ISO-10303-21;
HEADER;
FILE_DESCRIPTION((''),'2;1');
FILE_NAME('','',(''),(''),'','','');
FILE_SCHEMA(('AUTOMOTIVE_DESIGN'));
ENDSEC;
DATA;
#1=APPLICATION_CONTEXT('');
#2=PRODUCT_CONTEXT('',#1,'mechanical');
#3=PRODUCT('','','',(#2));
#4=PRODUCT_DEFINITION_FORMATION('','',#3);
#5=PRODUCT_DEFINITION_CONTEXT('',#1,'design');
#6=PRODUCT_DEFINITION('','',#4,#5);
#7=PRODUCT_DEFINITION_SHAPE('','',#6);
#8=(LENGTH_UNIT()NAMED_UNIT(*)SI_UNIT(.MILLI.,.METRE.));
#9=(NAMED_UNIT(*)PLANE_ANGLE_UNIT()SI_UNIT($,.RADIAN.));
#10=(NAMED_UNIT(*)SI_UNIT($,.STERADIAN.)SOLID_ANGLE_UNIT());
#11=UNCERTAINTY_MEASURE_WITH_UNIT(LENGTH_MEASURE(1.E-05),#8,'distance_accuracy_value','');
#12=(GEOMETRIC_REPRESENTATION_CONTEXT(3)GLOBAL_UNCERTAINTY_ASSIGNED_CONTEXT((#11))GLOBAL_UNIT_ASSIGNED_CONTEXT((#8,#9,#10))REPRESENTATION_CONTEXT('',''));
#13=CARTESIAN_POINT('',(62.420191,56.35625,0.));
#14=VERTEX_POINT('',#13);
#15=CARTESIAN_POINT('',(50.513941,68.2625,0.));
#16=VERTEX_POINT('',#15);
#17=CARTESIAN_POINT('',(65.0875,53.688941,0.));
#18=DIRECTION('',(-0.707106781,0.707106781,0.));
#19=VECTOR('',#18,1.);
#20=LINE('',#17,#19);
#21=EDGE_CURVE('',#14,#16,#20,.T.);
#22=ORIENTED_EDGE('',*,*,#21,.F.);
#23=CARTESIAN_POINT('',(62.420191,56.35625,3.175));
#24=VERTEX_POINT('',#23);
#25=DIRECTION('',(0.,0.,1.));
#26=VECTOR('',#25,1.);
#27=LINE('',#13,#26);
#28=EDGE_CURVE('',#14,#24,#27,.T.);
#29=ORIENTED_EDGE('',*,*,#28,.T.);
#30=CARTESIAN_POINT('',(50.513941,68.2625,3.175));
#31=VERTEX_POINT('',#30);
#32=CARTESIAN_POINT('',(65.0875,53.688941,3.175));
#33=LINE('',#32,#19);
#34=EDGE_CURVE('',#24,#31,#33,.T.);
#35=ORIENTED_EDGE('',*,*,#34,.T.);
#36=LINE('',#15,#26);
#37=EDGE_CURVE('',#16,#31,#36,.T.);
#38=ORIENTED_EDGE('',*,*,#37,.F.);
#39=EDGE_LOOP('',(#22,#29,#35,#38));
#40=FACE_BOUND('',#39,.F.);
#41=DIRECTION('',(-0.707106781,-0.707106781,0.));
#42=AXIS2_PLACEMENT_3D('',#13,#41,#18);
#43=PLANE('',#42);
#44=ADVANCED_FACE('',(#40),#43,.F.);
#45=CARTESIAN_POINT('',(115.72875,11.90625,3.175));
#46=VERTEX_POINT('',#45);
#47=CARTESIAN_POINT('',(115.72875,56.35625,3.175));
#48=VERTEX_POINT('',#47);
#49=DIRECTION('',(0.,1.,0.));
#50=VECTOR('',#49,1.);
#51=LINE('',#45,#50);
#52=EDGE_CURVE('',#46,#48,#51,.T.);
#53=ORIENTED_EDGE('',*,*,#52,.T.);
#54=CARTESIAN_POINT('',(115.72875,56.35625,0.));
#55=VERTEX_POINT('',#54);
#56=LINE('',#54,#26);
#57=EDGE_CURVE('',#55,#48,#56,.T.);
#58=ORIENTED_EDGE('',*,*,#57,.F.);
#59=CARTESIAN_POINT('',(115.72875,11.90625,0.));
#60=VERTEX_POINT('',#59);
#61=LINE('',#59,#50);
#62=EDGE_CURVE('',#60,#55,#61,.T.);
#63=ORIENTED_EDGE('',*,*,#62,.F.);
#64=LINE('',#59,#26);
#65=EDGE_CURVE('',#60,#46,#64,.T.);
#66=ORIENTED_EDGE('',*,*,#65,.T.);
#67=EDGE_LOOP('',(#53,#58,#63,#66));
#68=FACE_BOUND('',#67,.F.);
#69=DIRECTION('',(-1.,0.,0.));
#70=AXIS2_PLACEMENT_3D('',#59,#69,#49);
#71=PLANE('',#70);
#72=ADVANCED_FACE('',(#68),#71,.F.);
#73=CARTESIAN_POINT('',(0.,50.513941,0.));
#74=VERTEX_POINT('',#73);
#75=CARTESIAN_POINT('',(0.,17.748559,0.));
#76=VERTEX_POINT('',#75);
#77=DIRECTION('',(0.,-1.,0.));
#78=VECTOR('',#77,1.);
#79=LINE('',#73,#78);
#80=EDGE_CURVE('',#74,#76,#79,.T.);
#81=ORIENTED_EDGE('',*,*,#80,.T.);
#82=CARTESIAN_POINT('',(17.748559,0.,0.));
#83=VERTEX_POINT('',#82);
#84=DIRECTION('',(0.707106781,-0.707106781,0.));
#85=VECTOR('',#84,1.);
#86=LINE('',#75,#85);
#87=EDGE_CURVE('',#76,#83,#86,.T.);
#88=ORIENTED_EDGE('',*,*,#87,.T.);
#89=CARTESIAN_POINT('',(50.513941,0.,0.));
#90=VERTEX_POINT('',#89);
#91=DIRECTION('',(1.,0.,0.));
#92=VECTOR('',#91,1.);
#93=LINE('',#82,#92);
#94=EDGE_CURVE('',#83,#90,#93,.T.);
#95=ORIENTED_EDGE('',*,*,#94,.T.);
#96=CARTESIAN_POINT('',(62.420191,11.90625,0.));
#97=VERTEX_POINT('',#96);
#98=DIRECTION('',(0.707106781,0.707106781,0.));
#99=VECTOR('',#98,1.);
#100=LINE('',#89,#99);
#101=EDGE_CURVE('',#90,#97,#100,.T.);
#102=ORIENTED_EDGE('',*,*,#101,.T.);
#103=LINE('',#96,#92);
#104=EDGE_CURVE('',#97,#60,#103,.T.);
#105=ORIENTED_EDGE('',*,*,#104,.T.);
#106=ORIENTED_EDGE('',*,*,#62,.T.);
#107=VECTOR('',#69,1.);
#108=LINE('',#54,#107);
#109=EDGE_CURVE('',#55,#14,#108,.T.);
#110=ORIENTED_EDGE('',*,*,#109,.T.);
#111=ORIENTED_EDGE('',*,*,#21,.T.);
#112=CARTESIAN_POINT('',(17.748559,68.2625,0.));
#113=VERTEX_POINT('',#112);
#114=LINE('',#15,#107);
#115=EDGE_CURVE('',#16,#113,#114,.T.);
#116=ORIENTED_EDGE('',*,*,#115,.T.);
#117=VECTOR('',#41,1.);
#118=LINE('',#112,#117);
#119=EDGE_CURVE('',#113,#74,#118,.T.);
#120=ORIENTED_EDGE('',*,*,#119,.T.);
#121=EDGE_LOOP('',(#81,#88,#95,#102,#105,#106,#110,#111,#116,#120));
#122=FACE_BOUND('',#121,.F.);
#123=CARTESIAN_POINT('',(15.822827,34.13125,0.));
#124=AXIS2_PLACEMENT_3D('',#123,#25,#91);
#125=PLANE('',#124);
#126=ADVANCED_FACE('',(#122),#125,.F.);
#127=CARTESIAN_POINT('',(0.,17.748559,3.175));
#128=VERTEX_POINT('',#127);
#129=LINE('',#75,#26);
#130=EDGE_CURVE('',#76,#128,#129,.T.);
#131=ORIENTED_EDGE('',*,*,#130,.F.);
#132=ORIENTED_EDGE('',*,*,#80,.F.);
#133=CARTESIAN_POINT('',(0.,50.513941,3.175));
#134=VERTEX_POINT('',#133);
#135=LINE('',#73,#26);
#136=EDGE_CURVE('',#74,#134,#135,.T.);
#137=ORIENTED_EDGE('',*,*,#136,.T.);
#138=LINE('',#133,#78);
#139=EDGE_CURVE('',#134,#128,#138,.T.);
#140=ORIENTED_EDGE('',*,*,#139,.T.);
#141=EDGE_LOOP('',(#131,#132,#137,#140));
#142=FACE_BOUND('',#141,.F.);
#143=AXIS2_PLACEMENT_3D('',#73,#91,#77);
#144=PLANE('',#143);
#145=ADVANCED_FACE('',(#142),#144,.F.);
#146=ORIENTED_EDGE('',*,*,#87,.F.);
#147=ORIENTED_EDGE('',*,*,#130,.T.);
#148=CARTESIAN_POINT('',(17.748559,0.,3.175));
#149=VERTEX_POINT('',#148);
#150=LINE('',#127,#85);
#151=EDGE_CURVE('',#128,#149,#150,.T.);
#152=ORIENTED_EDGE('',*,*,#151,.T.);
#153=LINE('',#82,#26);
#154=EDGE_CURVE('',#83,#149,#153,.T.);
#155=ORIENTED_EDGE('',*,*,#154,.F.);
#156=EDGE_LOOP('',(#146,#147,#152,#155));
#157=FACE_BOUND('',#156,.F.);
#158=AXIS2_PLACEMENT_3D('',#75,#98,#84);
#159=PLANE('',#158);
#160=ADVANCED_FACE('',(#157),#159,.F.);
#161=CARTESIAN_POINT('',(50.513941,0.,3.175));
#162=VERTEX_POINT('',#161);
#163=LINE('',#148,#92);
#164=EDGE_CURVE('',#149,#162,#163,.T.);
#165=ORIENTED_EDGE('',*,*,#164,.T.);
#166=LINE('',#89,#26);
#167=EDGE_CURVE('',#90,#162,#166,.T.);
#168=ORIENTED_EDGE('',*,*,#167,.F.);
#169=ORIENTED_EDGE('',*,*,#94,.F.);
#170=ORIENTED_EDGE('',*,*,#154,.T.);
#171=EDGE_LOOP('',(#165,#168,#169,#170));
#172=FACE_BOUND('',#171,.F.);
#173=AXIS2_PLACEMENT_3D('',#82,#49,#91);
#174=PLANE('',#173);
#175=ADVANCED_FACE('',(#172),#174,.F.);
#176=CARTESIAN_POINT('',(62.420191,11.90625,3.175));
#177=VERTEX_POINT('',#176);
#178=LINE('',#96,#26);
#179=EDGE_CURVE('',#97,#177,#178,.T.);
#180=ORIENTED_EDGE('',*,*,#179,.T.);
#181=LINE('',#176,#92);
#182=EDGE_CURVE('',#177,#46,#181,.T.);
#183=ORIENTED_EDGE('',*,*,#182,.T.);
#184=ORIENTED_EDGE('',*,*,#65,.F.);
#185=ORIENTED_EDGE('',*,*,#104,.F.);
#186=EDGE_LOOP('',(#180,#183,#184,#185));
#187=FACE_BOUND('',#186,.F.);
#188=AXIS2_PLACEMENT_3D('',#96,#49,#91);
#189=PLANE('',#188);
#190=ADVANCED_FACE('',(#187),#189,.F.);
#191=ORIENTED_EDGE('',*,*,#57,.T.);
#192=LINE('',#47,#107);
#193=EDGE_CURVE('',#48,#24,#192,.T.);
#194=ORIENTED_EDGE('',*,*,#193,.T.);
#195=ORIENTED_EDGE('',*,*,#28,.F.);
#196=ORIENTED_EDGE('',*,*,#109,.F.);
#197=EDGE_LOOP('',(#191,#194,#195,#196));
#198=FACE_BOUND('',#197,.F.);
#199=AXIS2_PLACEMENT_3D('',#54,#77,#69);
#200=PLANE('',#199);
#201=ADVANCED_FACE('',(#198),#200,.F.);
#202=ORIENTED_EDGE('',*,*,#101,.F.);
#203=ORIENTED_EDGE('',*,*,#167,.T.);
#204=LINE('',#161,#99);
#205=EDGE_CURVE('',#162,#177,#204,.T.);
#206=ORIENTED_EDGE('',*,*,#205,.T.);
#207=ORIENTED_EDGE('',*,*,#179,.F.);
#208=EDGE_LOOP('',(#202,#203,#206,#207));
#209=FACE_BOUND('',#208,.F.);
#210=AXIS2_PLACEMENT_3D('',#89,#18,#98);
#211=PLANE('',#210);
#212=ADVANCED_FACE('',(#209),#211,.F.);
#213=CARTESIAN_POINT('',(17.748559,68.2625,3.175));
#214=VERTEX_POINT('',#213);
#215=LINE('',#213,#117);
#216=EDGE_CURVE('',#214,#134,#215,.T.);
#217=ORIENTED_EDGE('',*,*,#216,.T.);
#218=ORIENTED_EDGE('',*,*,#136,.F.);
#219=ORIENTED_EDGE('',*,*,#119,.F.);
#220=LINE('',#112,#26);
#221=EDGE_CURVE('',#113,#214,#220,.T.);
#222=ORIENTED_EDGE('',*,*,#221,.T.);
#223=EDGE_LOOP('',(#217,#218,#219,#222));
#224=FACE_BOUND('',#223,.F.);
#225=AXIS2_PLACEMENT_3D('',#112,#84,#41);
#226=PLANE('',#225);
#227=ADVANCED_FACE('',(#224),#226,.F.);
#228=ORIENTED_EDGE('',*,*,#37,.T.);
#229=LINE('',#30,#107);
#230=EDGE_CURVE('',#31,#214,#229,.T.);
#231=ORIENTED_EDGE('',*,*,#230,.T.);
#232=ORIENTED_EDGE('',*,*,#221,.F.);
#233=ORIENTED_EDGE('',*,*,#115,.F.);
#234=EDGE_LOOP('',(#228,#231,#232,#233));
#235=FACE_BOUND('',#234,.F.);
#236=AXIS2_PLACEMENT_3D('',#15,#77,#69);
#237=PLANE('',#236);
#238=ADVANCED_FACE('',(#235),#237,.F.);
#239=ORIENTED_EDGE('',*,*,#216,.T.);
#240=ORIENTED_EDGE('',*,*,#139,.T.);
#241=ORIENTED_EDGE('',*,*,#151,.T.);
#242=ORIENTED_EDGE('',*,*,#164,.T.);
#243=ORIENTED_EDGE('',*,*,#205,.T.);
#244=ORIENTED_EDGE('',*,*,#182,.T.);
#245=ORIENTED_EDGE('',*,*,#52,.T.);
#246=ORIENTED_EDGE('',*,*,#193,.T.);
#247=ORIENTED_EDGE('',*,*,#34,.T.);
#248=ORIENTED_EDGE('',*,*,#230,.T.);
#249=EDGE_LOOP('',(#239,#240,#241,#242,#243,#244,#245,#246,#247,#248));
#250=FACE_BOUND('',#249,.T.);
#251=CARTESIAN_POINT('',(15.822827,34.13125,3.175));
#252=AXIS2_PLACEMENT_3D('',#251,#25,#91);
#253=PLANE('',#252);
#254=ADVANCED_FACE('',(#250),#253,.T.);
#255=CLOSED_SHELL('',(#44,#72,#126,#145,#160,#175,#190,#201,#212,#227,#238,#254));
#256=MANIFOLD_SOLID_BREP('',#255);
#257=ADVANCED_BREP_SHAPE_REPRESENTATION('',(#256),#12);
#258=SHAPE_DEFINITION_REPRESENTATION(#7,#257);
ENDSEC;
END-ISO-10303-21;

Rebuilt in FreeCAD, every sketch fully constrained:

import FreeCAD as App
import Part
import Sketcher
from FreeCAD import Vector
Q = App.Units.Quantity


def add_polygon(sketch, points):
    """Adds a closed chain of lines whose ends are joined by coincident constraints."""
    first, n = sketch.GeometryCount, len(points)
    for a, b in zip(points, points[1:] + points[:1]):
        sketch.addGeometry(Part.LineSegment(App.Vector(*a, 0), App.Vector(*b, 0)), False)
    for i in range(n):
        sketch.addConstraint(Sketcher.Constraint("Coincident", first + i, 2, first + (i + 1) % n, 1))

doc = App.newDocument("Part")
body = doc.addObject("PartDesign::Body", "Body")

# Sketch on XY plane
sketch1 = body.newObject("Sketcher::SketchObject", "Sketch")
sketch1.AttachmentSupport = (doc.getObject("XY_Plane"), [""])
sketch1.MapMode = "FlatFace"
add_polygon(sketch1, [(0, 50.513941), (0, 17.748559), (17.748559, 0), (50.513941, 0), (62.420191, 11.90625), (115.72875, 11.90625), (115.72875, 56.35625), (62.420191, 56.35625), (50.513941, 68.2625), (17.748559, 68.2625)])  # lines 0-9
sketch1.addConstraint([
    Sketcher.Constraint("Vertical", 0),
    Sketcher.Constraint("Horizontal", 2),
    Sketcher.Constraint("Horizontal", 4),
    Sketcher.Constraint("Vertical", 5),
    Sketcher.Constraint("Horizontal", 6),
    Sketcher.Constraint("Horizontal", 8),
    Sketcher.Constraint("PointOnObject", 0, 2, -2),
    Sketcher.Constraint("PointOnObject", 1, 2, -1),
    Sketcher.Constraint("Perpendicular", 1, 3),
    Sketcher.Constraint("Perpendicular", 3, 7),
    Sketcher.Constraint("Perpendicular", 7, 9),
    Sketcher.Constraint("Vertical", 3, 2, 6, 2),
    Sketcher.Constraint("Vertical", 2, 2, 7, 2),
    Sketcher.Constraint("Vertical", 1, 2, 8, 2),
    Sketcher.Constraint("Equal", 8, 0),
    Sketcher.Constraint("Equal", 3, 7),
    Sketcher.Constraint("DistanceY", 5, 1, 5, 2, Q("1.75 in")),
    Sketcher.Constraint("DistanceY", -1, 1, 3, 2, Q("0.46875 in")),
    Sketcher.Constraint("DistanceX", 2, 1, 2, 2, Q("32.765381 mm")),
    Sketcher.Constraint("DistanceX", 4, 1, 4, 2, Q("53.308559 mm")),
])
pad1 = body.newObject("PartDesign::Pad", "Pad")
pad1.Profile = sketch1
pad1.Length = Q("0.125 in")

doc.recompute()
